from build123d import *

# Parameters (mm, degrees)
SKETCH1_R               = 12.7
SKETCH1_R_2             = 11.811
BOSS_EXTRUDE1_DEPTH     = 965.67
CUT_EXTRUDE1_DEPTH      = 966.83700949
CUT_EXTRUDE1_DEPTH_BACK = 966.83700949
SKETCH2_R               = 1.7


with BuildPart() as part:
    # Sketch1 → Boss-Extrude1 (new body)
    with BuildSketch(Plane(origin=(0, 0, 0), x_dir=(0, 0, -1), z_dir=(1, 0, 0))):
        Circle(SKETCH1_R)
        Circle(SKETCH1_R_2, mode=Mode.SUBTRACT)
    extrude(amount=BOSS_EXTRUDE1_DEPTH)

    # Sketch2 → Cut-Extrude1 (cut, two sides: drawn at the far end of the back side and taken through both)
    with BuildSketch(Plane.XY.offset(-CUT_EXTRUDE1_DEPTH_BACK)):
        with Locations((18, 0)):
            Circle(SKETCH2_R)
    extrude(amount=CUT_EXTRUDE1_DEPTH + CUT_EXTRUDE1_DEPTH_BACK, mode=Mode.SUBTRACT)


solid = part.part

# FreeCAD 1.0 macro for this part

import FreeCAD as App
import Part
import Sketcher
from FreeCAD import Vector
Q = App.Units.Quantity

doc = App.newDocument("Part")
body = doc.addObject("PartDesign::Body", "Body")

# Sketch on YZ plane
sketch1 = body.newObject("Sketcher::SketchObject", "Sketch")
sketch1.AttachmentSupport = (doc.getObject("YZ_Plane"), [""])
sketch1.MapMode = "FlatFace"
sketch1.addGeometry([
    Part.Circle(Vector(0, 0, 0), Vector(0, 0, 1), 13),
    Part.Circle(Vector(0, 0, 0), Vector(0, 0, 1), 12),
], False)
sketch1.addConstraint([
    Sketcher.Constraint("Coincident", 0, 3, -1, 1),
    Sketcher.Constraint("Coincident", 1, 3, -1, 1),
    Sketcher.Constraint("Diameter", 0, Q("1 in")),
    Sketcher.Constraint("Diameter", 1, Q("0.93 in")),
])
pad1 = body.newObject("PartDesign::Pad", "Pad")
pad1.Profile = sketch1
pad1.Length = 965.67

# Sketch on XY plane
sketch2 = body.newObject("Sketcher::SketchObject", "Sketch001")
sketch2.AttachmentSupport = (doc.getObject("XY_Plane"), [""])
sketch2.MapMode = "FlatFace"
sketch2.addGeometry(Part.Circle(Vector(18, 0, 0), Vector(0, 0, 1), 1.7), False)
sketch2.addConstraint([
    Sketcher.Constraint("PointOnObject", 0, 3, -1),
    Sketcher.Constraint("Diameter", 0, Q("3.4 mm")),
    Sketcher.Constraint("DistanceX", -1, 1, 0, 3, Q("18 mm")),
])
pocket1 = body.newObject("PartDesign::Pocket", "Pocket")
pocket1.Profile = sketch2
pocket1.Type = "ThroughAll"
pocket1.Midplane = True

doc.recompute()
